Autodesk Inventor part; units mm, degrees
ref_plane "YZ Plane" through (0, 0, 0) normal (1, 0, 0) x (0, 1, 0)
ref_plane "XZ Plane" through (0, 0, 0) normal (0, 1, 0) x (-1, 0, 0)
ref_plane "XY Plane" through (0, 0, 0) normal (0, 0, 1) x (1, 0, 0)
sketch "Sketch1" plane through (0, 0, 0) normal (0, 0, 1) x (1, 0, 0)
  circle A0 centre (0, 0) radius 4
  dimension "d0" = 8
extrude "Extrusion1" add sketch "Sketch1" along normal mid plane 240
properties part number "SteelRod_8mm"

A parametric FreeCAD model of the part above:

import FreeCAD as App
import Part
import Sketcher
Q = App.Units.Quantity

doc = App.newDocument("Part")
body = doc.addObject("PartDesign::Body", "Body")

sketch1 = body.newObject("Sketcher::SketchObject", "Sketch")
sketch1.AttachmentSupport = (doc.getObject("XY_Plane"), [""])
sketch1.MapMode = "FlatFace"
sketch1.addGeometry(Part.Circle(App.Vector(0, 0, 0), App.Vector(0, 0, 1), 4), False)
sketch1.addConstraint([
    Sketcher.Constraint("Coincident", 0, 3, -1, 1),
    Sketcher.Constraint("Diameter", 0, Q("8 mm")),
])
pad1 = body.newObject("PartDesign::Pad", "Pad")
pad1.Profile = sketch1
pad1.Length = 240
pad1.Midplane = True

doc.recompute()
